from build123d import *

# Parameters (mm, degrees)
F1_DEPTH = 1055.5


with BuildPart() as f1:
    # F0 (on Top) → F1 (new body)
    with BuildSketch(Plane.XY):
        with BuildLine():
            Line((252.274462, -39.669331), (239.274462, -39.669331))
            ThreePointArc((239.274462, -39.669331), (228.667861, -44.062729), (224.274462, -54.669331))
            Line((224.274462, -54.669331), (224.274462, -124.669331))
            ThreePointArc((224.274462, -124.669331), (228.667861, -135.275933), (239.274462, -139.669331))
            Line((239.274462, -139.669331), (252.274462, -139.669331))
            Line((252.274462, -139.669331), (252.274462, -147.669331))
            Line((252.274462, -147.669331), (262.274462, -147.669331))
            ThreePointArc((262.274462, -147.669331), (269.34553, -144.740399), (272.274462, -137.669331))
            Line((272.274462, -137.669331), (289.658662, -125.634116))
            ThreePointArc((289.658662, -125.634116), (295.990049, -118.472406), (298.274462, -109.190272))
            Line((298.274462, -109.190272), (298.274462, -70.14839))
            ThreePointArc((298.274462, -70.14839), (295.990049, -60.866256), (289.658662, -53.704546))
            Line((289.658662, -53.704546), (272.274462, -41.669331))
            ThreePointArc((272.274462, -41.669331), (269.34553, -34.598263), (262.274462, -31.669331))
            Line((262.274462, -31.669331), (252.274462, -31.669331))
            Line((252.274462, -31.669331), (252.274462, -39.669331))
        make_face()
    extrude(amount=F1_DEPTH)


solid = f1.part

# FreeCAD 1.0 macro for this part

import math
import FreeCAD as App
import Part
import Sketcher
Q = App.Units.Quantity

doc = App.newDocument("Part")
body = doc.addObject("PartDesign::Body", "Body")

# Sketch on XY plane
sketch1 = body.newObject("Sketcher::SketchObject", "Sketch")
sketch1.AttachmentSupport = (doc.getObject("XY_Plane"), [""])
sketch1.MapMode = "FlatFace"
sketch1.addGeometry(Part.LineSegment(App.Vector(252, -40, 0), App.Vector(239, -40, 0)), False)
sketch1.addGeometry(Part.ArcOfCircle(Part.Circle(App.Vector(239, -55, 0), App.Vector(0, 0, 1), 15), math.radians(90), math.radians(180)), False)
sketch1.addGeometry(Part.LineSegment(App.Vector(224, -55, 0), App.Vector(224, -125, 0)), False)
sketch1.addGeometry(Part.ArcOfCircle(Part.Circle(App.Vector(239, -125, 0), App.Vector(0, 0, 1), 15), math.radians(-180), math.radians(-90)), False)
sketch1.addGeometry(Part.LineSegment(App.Vector(239, -140, 0), App.Vector(252, -140, 0)), False)
sketch1.addGeometry(Part.LineSegment(App.Vector(252, -140, 0), App.Vector(252, -148, 0)), False)
sketch1.addGeometry(Part.LineSegment(App.Vector(252, -148, 0), App.Vector(262, -148, 0)), False)
sketch1.addGeometry(Part.ArcOfCircle(Part.Circle(App.Vector(262, -138, 0), App.Vector(0, 0, 1), 10), math.radians(-90), math.radians(0)), False)
sketch1.addGeometry(Part.LineSegment(App.Vector(272, -138, 0), App.Vector(290, -126, 0)), False)
sketch1.addGeometry(Part.ArcOfCircle(Part.Circle(App.Vector(278, -109, 0), App.Vector(0, 0, 1), 20), math.radians(-55), math.radians(0)), False)
sketch1.addGeometry(Part.LineSegment(App.Vector(298, -109, 0), App.Vector(298, -70, 0)), False)
sketch1.addGeometry(Part.ArcOfCircle(Part.Circle(App.Vector(278, -70, 0), App.Vector(0, 0, 1), 20), math.radians(0), math.radians(55)), False)
sketch1.addGeometry(Part.LineSegment(App.Vector(290, -54, 0), App.Vector(272, -42, 0)), False)
sketch1.addGeometry(Part.ArcOfCircle(Part.Circle(App.Vector(262, -42, 0), App.Vector(0, 0, 1), 10), math.radians(0), math.radians(90)), False)
sketch1.addGeometry(Part.LineSegment(App.Vector(262, -32, 0), App.Vector(252, -32, 0)), False)
sketch1.addGeometry(Part.LineSegment(App.Vector(252, -32, 0), App.Vector(252, -40, 0)), False)
sketch1.addConstraint(Sketcher.Constraint("Tangent", 0, 2, 1, 1))
sketch1.addConstraint(Sketcher.Constraint("Tangent", 1, 2, 2, 1))
sketch1.addConstraint(Sketcher.Constraint("Tangent", 2, 2, 3, 1))
sketch1.addConstraint(Sketcher.Constraint("Tangent", 3, 2, 4, 1))
sketch1.addConstraint(Sketcher.Constraint("Coincident", 4, 2, 5, 1))
sketch1.addConstraint(Sketcher.Constraint("Coincident", 5, 2, 6, 1))
sketch1.addConstraint(Sketcher.Constraint("Tangent", 6, 2, 7, 1))
sketch1.addConstraint(Sketcher.Constraint("Coincident", 7, 2, 8, 1))
sketch1.addConstraint(Sketcher.Constraint("Tangent", 8, 2, 9, 1))
sketch1.addConstraint(Sketcher.Constraint("Tangent", 9, 2, 10, 1))
sketch1.addConstraint(Sketcher.Constraint("Tangent", 10, 2, 11, 1))
sketch1.addConstraint(Sketcher.Constraint("Tangent", 11, 2, 12, 1))
sketch1.addConstraint(Sketcher.Constraint("Coincident", 12, 2, 13, 1))
sketch1.addConstraint(Sketcher.Constraint("Tangent", 13, 2, 14, 1))
sketch1.addConstraint(Sketcher.Constraint("Coincident", 14, 2, 15, 1))
sketch1.addConstraint(Sketcher.Constraint("Coincident", 15, 2, 0, 1))
sketch1.addConstraint(Sketcher.Constraint("Horizontal", 0))
sketch1.addConstraint(Sketcher.Constraint("Vertical", 2))
sketch1.addConstraint(Sketcher.Constraint("Horizontal", 4))
sketch1.addConstraint(Sketcher.Constraint("Vertical", 5))
sketch1.addConstraint(Sketcher.Constraint("Horizontal", 6))
sketch1.addConstraint(Sketcher.Constraint("Vertical", 10))
sketch1.addConstraint(Sketcher.Constraint("Horizontal", 14))
sketch1.addConstraint(Sketcher.Constraint("Vertical", 15))
sketch1.addConstraint(Sketcher.Constraint("Equal", 1, 3))
sketch1.addConstraint(Sketcher.Constraint("Equal", 9, 11))
sketch1.addConstraint(Sketcher.Constraint("Equal", 7, 13))
sketch1.addConstraint(Sketcher.Constraint("Horizontal", 13, 3, 12, 2))
sketch1.addConstraint(Sketcher.Constraint("Vertical", 7, 3, 13, 3))
sketch1.addConstraint(Sketcher.Constraint("Vertical", 8, 2, 11, 2))
sketch1.addConstraint(Sketcher.Constraint("Vertical", 5, 2, 14, 2))
sketch1.addConstraint(Sketcher.Constraint("Equal", 5, 15))
sketch1.addConstraint(Sketcher.Constraint("Radius", 1, Q("15.000001 mm")))
sketch1.addConstraint(Sketcher.Constraint("Radius", 7, Q("9.999999 mm")))
sketch1.addConstraint(Sketcher.Constraint("DistanceX", 0, 2, 0, 1, Q("13 mm")))
sketch1.addConstraint(Sketcher.Constraint("DistanceX", 6, 1, 6, 2, Q("10 mm")))
sketch1.addConstraint(Sketcher.Constraint("DistanceY", 2, 2, 2, 1, Q("70 mm")))
sketch1.addConstraint(Sketcher.Constraint("DistanceY", 5, 2, 5, 1, Q("8 mm")))
sketch1.addConstraint(Sketcher.Constraint("DistanceY", 6, 2, 7, 2, Q("10 mm")))
sketch1.addConstraint(Sketcher.Constraint("DistanceX", 7, 2, 9, 2, Q("26 mm")))
sketch1.addConstraint(Sketcher.Constraint("Radius", 9, Q("19.999995 mm")))
sketch1.addConstraint(Sketcher.Constraint("DistanceY", 10, 1, 10, 2, Q("39.041882 mm")))
sketch1.addConstraint(Sketcher.Constraint("DistanceY", 1, 3, -1, 1, Q("54.669332 mm")))
sketch1.addConstraint(Sketcher.Constraint("DistanceX", -1, 1, 0, 2, Q("239.274462 mm")))
pad1 = body.newObject("PartDesign::Pad", "Pad")
pad1.Profile = sketch1
pad1.Length = 1055.5

doc.recompute()
